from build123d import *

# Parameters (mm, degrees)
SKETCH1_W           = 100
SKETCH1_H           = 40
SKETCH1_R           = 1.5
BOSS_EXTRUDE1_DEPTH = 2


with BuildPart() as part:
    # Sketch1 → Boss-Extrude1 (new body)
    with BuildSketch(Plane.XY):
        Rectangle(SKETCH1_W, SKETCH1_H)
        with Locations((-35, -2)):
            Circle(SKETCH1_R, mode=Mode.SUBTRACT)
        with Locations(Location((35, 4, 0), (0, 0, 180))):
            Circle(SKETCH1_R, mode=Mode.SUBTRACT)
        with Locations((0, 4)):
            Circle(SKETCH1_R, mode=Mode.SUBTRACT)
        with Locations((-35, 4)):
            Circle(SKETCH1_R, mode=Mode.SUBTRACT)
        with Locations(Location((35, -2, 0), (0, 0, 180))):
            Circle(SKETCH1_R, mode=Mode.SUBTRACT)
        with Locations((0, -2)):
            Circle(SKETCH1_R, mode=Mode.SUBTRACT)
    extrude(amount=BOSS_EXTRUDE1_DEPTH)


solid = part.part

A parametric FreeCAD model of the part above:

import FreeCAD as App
import Part
import Sketcher
Q = App.Units.Quantity


def add_polygon(sketch, points):
    """Adds a closed chain of lines whose ends are joined by coincident constraints."""
    first, n = sketch.GeometryCount, len(points)
    for a, b in zip(points, points[1:] + points[:1]):
        sketch.addGeometry(Part.LineSegment(App.Vector(*a, 0), App.Vector(*b, 0)), False)
    for i in range(n):
        sketch.addConstraint(Sketcher.Constraint("Coincident", first + i, 2, first + (i + 1) % n, 1))

doc = App.newDocument("Part")
body = doc.addObject("PartDesign::Body", "Body")

# Sketch on XY plane
sketch1 = doc.addObject("Sketcher::SketchObject", "Sketch")
body.addObject(sketch1)
sketch1.AttachmentSupport = (doc.XY_Plane, [""])
sketch1.MapMode = "FlatFace"
add_polygon(sketch1, [(-50, 20), (-50, -20), (50, -20), (50, 20)])  # lines 0-3
sketch1.addGeometry(Part.Circle(App.Vector(-35, -2, 0), App.Vector(0, 0, 1), 1.5), False)  # 4
sketch1.addGeometry(Part.Circle(App.Vector(0, -2, 0), App.Vector(0, 0, 1), 1.5), False)  # 5
sketch1.addGeometry(Part.Circle(App.Vector(35, -2, 0), App.Vector(0, 0, 1), 1.5), False)  # 6
sketch1.addGeometry(Part.Circle(App.Vector(-35, 4, 0), App.Vector(0, 0, 1), 1.5), False)  # 7
sketch1.addGeometry(Part.Circle(App.Vector(0, 4, 0), App.Vector(0, 0, 1), 1.5), False)  # 8
sketch1.addGeometry(Part.Circle(App.Vector(35, 4, 0), App.Vector(0, 0, 1), 1.5), False)  # 9
sketch1.addConstraint([
    Sketcher.Constraint("Vertical", 0),
    Sketcher.Constraint("Horizontal", 1),
    Sketcher.Constraint("Vertical", 2),
    Sketcher.Constraint("Horizontal", 3),
    Sketcher.Constraint("Equal", 4, 5),
    Sketcher.Constraint("Equal", 5, 6),
    Sketcher.Constraint("Equal", 6, 7),
    Sketcher.Constraint("Equal", 7, 8),
    Sketcher.Constraint("Equal", 8, 9),
    Sketcher.Constraint("Symmetric", 0, 2, 2, 2, -1, 1),
    Sketcher.Constraint("Symmetric", 4, 3, 6, 3, -2),
    Sketcher.Constraint("Symmetric", 7, 3, 9, 3, -2),
    Sketcher.Constraint("PointOnObject", 5, 3, -2),
    Sketcher.Constraint("PointOnObject", 8, 3, -2),
    Sketcher.Constraint("Horizontal", 4, 3, 5, 3),
    Sketcher.Constraint("Horizontal", 7, 3, 8, 3),
    Sketcher.Constraint("Vertical", 4, 3, 7, 3),
    Sketcher.Constraint("Diameter", 4, Q("3 mm")),
    Sketcher.Constraint("DistanceX", 1, 1, 1, 2, Q("100 mm")),
    Sketcher.Constraint("DistanceY", 0, 2, 0, 1, Q("40 mm")),
    Sketcher.Constraint("DistanceX", 4, 3, -1, 1, Q("35 mm")),
    Sketcher.Constraint("DistanceY", 4, 3, -1, 1, Q("2 mm")),
    Sketcher.Constraint("DistanceY", -1, 1, 7, 3, Q("4 mm")),
])
pad1 = doc.addObject("PartDesign::Pad", "Pad")
body.addObject(pad1)
pad1.Profile = sketch1
pad1.Length = 2

doc.recompute()
